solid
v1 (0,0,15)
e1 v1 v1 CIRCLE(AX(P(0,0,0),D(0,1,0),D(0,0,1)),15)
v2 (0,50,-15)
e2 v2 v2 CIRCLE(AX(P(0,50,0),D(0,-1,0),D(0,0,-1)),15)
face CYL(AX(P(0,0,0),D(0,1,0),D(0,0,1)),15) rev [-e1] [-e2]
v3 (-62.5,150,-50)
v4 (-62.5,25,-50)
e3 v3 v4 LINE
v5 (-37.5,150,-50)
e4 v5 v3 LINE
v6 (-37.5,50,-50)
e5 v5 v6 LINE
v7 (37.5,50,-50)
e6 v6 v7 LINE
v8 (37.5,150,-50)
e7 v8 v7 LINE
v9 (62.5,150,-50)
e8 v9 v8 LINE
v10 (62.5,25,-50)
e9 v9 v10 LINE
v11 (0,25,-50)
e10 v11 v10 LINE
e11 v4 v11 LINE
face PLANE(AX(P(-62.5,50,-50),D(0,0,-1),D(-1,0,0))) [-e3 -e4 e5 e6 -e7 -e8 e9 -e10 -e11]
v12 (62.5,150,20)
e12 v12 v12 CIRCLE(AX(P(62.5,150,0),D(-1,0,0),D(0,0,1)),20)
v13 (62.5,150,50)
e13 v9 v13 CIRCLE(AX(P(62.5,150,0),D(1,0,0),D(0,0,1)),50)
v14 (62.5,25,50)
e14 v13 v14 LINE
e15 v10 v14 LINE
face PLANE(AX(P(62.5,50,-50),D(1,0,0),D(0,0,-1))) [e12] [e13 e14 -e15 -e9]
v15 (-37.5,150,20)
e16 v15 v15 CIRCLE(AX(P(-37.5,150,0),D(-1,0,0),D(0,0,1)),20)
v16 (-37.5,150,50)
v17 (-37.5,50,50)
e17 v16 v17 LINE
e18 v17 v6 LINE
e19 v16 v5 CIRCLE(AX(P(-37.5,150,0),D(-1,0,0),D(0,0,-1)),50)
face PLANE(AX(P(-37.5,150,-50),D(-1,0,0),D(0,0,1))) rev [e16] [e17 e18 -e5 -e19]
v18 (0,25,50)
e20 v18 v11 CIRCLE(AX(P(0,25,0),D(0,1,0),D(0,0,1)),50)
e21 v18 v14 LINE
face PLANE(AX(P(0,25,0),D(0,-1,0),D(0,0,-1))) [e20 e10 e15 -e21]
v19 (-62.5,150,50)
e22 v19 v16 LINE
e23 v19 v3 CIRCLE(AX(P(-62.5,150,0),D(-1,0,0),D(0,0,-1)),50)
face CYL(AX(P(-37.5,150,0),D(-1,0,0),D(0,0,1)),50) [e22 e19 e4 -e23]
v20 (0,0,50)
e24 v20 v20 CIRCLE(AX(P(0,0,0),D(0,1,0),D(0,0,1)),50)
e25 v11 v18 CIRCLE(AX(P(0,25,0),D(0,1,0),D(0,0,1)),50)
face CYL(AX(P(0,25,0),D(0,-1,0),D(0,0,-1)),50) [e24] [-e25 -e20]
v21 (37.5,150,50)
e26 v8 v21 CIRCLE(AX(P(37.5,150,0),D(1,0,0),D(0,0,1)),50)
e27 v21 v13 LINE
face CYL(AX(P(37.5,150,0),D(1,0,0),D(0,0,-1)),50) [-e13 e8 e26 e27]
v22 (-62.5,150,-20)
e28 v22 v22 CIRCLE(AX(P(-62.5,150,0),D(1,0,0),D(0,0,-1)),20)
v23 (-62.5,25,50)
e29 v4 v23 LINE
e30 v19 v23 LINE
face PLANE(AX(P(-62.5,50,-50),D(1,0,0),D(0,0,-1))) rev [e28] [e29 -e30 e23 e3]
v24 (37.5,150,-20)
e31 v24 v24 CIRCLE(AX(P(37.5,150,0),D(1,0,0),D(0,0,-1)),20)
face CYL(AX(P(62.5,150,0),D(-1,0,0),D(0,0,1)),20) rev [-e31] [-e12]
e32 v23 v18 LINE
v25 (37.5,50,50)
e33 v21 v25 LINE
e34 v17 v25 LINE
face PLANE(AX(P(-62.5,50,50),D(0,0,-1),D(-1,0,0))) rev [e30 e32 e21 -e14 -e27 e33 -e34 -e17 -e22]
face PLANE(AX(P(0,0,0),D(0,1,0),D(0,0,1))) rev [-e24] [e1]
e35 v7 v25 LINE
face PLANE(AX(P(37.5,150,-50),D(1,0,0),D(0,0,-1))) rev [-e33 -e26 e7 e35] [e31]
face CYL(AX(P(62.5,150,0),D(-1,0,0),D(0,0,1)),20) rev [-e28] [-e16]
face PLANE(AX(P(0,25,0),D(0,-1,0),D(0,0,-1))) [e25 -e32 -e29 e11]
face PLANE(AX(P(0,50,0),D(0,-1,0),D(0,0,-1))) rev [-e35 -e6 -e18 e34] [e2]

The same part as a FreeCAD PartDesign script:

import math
import FreeCAD as App
import Part
import Sketcher

V = App.Vector
Q = App.Units.Quantity


def add_polygon(sketch, points):
    """Adds a closed chain of lines whose ends are joined by coincident constraints."""
    first, n = sketch.GeometryCount, len(points)
    for a, b in zip(points, points[1:] + points[:1]):
        sketch.addGeometry(Part.LineSegment(App.Vector(*a, 0), App.Vector(*b, 0)), False)
    for i in range(n):
        sketch.addConstraint(Sketcher.Constraint("Coincident", first + i, 2, first + (i + 1) % n, 1))

doc = App.newDocument("Part")
params = doc.addObject("Spreadsheet::Sheet", "Params")
for row, (alias, value) in enumerate([
    ("sketch1_diameter", "100 mm"),
    ("sketch1_diameter2", "75 mm"),
    ("pad1_length", "25 mm"),
    ("sketch2_diameter", "75 mm"),
    ("pad2_length", "25 mm"),
    ("sketch3_width", "125 mm"),
    ("sketch3_height", "100 mm"),
    ("pad3_length", "25 mm"),
    ("sketch4_width", "25 mm"),
    ("sketch4_height", "100 mm"),
    ("pad4_length", "100 mm"),
    ("sketch5_width", "25 mm"),
    ("sketch5_height", "100 mm"),
    ("pad5_length", "100 mm"),
    ("sketch6_diameter", "30 mm"),
    ("sketch7_radius", "50 mm"),
    ("sketch7_width", "125 mm"),
    ("pad6_length", "25 mm"),
    ("sketch8_radius", "50 mm"),
    ("pad7_length", "25 mm"),
    ("sketch9_diameter", "40 mm"),
], start=1):
    params.set(f"A{row}", alias)
    params.set(f"B{row}", "=" + value)
    params.setAlias(f"B{row}", alias)

body = doc.addObject("PartDesign::Body", "Body")

# Sketch on XZ plane
sketch1 = body.newObject("Sketcher::SketchObject", "Sketch")
sketch1.AttachmentSupport = (doc.getObject("XZ_Plane"), [""])
sketch1.MapMode = "FlatFace"
sketch1.addGeometry(Part.Circle(V(0, 0, 0), V(0, 0, 1), 50), False)
sketch1.addGeometry(Part.Circle(V(0, 0, 0), V(0, 0, 1), 37.5), False)
sketch1.addConstraint(Sketcher.Constraint("Coincident", 0, 3, -1, 1))
sketch1.addConstraint(Sketcher.Constraint("Coincident", 1, 3, -1, 1))
sketch1.addConstraint(Sketcher.Constraint("Diameter", 0, Q("100 mm")))
sketch1.addConstraint(Sketcher.Constraint("Diameter", 1, Q("75 mm")))
sketch1.setExpression("Constraints[2]", "Params.sketch1_diameter")
sketch1.setExpression("Constraints[3]", "Params.sketch1_diameter2")
pad1 = body.newObject("PartDesign::Pad", "Pad")
pad1.Profile = sketch1
pad1.setExpression("Length", "Params.pad1_length")
pad1.Reversed = True

# Sketch on XZ plane
sketch2 = body.newObject("Sketcher::SketchObject", "Sketch001")
sketch2.AttachmentSupport = (doc.getObject("XZ_Plane"), [""])
sketch2.MapMode = "FlatFace"
sketch2.addGeometry(Part.Circle(V(0, 0, 0), V(0, 0, 1), 37.5), False)
sketch2.addConstraint(Sketcher.Constraint("Coincident", 0, 3, -1, 1))
sketch2.addConstraint(Sketcher.Constraint("Diameter", 0, Q("75 mm")))
sketch2.setExpression("Constraints[1]", "Params.sketch2_diameter")
pad2 = body.newObject("PartDesign::Pad", "Pad001")
pad2.Profile = sketch2
pad2.setExpression("Length", "Params.pad2_length")
pad2.Reversed = True

# Sketch on XZ plane
sketch3 = body.newObject("Sketcher::SketchObject", "Sketch002")
sketch3.AttachmentSupport = (doc.getObject("XZ_Plane"), [""])
sketch3.MapMode = "FlatFace"
sketch3.AttachmentOffset = App.Placement(V(0, 0, -25), App.Rotation())
add_polygon(sketch3, [(-62.5, -50), (-62.5, 50), (62.5, 50), (62.5, -50)])  # lines 0-3
sketch3.addConstraint(Sketcher.Constraint("Vertical", 0))
sketch3.addConstraint(Sketcher.Constraint("Horizontal", 1))
sketch3.addConstraint(Sketcher.Constraint("Vertical", 2))
sketch3.addConstraint(Sketcher.Constraint("Horizontal", 3))
sketch3.addConstraint(Sketcher.Constraint("Symmetric", 0, 2, 2, 2, -1, 1))
sketch3.addConstraint(Sketcher.Constraint("DistanceX", 1, 1, 1, 2, Q("125 mm")))
sketch3.addConstraint(Sketcher.Constraint("DistanceY", 0, 1, 0, 2, Q("100 mm")))
sketch3.setExpression("Constraints[9]", "Params.sketch3_width")
sketch3.setExpression("Constraints[10]", "Params.sketch3_height")
pad3 = body.newObject("PartDesign::Pad", "Pad002")
pad3.Profile = sketch3
pad3.setExpression("Length", "Params.pad3_length")
pad3.Reversed = True

# Sketch on XZ plane
sketch4 = body.newObject("Sketcher::SketchObject", "Sketch003")
sketch4.AttachmentSupport = (doc.getObject("XZ_Plane"), [""])
sketch4.MapMode = "FlatFace"
sketch4.AttachmentOffset = App.Placement(V(0, 0, -50), App.Rotation())
add_polygon(sketch4, [(-62.5, -50), (-62.5, 50), (-37.5, 50), (-37.5, -50)])  # lines 0-3
sketch4.addConstraint(Sketcher.Constraint("Vertical", 0))
sketch4.addConstraint(Sketcher.Constraint("Horizontal", 1))
sketch4.addConstraint(Sketcher.Constraint("Vertical", 2))
sketch4.addConstraint(Sketcher.Constraint("Horizontal", 3))
sketch4.addConstraint(Sketcher.Constraint("DistanceX", 1, 1, 1, 2, Q("25 mm")))
sketch4.addConstraint(Sketcher.Constraint("DistanceY", 0, 1, 0, 2, Q("100 mm")))
sketch4.addConstraint(Sketcher.Constraint("DistanceY", -1, 1, 0, 2, Q("50 mm")))
sketch4.addConstraint(Sketcher.Constraint("DistanceX", 0, 2, -1, 1, Q("62.5 mm")))
sketch4.setExpression("Constraints[8]", "Params.sketch4_width")
sketch4.setExpression("Constraints[9]", "Params.sketch4_height")
pad4 = body.newObject("PartDesign::Pad", "Pad003")
pad4.Profile = sketch4
pad4.setExpression("Length", "Params.pad4_length")
pad4.Reversed = True

# Sketch on XZ plane
sketch5 = body.newObject("Sketcher::SketchObject", "Sketch004")
sketch5.AttachmentSupport = (doc.getObject("XZ_Plane"), [""])
sketch5.MapMode = "FlatFace"
sketch5.AttachmentOffset = App.Placement(V(0, 0, -50), App.Rotation())
add_polygon(sketch5, [(37.5, -50), (37.5, 50), (62.5, 50), (62.5, -50)])  # lines 0-3
sketch5.addConstraint(Sketcher.Constraint("Vertical", 0))
sketch5.addConstraint(Sketcher.Constraint("Horizontal", 1))
sketch5.addConstraint(Sketcher.Constraint("Vertical", 2))
sketch5.addConstraint(Sketcher.Constraint("Horizontal", 3))
sketch5.addConstraint(Sketcher.Constraint("DistanceX", 1, 1, 1, 2, Q("25 mm")))
sketch5.addConstraint(Sketcher.Constraint("DistanceY", 0, 1, 0, 2, Q("100 mm")))
sketch5.addConstraint(Sketcher.Constraint("DistanceY", -1, 1, 0, 2, Q("50 mm")))
sketch5.addConstraint(Sketcher.Constraint("DistanceX", -1, 1, 0, 2, Q("37.5 mm")))
sketch5.setExpression("Constraints[8]", "Params.sketch5_width")
sketch5.setExpression("Constraints[9]", "Params.sketch5_height")
pad5 = body.newObject("PartDesign::Pad", "Pad004")
pad5.Profile = sketch5
pad5.setExpression("Length", "Params.pad5_length")
pad5.Reversed = True

# Sketch on XZ plane
sketch6 = body.newObject("Sketcher::SketchObject", "Sketch005")
sketch6.AttachmentSupport = (doc.getObject("XZ_Plane"), [""])
sketch6.MapMode = "FlatFace"
sketch6.AttachmentOffset = App.Placement(V(0, 0, -50), App.Rotation())
sketch6.addGeometry(Part.Circle(V(0, 0, 0), V(0, 0, 1), 15), False)
sketch6.addConstraint(Sketcher.Constraint("Coincident", 0, 3, -1, 1))
sketch6.addConstraint(Sketcher.Constraint("Diameter", 0, Q("30 mm")))
sketch6.setExpression("Constraints[1]", "Params.sketch6_diameter")
pocket1 = body.newObject("PartDesign::Pocket", "Pocket")
pocket1.Profile = sketch6
pocket1.Type = "ThroughAll"
pocket1.Midplane = True

# Sketch on YZ plane
sketch7 = body.newObject("Sketcher::SketchObject", "Sketch006")
sketch7.AttachmentSupport = (doc.getObject("YZ_Plane"), [""])
sketch7.MapMode = "FlatFace"
sketch7.AttachmentOffset = App.Placement(V(0, 0, 62.5), App.Rotation())
sketch7.addGeometry(Part.LineSegment(V(25, 50, 0), V(25, -50, 0)), False)
sketch7.addGeometry(Part.LineSegment(V(25, -50, 0), V(150, -50, 0)), False)
sketch7.addGeometry(Part.ArcOfCircle(Part.Circle(V(150, 0, 0), V(0, 0, 1), 50), math.radians(-90), math.radians(90)), False)
sketch7.addGeometry(Part.LineSegment(V(150, 50, 0), V(25, 50, 0)), False)
sketch7.addConstraint(Sketcher.Constraint("Coincident", 0, 2, 1, 1))
sketch7.addConstraint(Sketcher.Constraint("Tangent", 1, 2, 2, 1))
sketch7.addConstraint(Sketcher.Constraint("Tangent", 2, 2, 3, 1))
sketch7.addConstraint(Sketcher.Constraint("Coincident", 3, 2, 0, 1))
sketch7.addConstraint(Sketcher.Constraint("Vertical", 0))
sketch7.addConstraint(Sketcher.Constraint("Horizontal", 1))
sketch7.addConstraint(Sketcher.Constraint("Horizontal", 3))
sketch7.addConstraint(Sketcher.Constraint("PointOnObject", 2, 3, -1))
sketch7.addConstraint(Sketcher.Constraint("Radius", 2, Q("50 mm")))
sketch7.addConstraint(Sketcher.Constraint("DistanceX", 1, 1, 1, 2, Q("125 mm")))
sketch7.addConstraint(Sketcher.Constraint("DistanceX", -1, 1, 2, 3, Q("150 mm")))
sketch7.setExpression("Constraints[8]", "Params.sketch7_radius")
sketch7.setExpression("Constraints[9]", "Params.sketch7_width")
pad6 = body.newObject("PartDesign::Pad", "Pad005")
pad6.Profile = sketch7
pad6.setExpression("Length", "Params.pad6_length")
pad6.Reversed = True

# Sketch on YZ plane
sketch8 = body.newObject("Sketcher::SketchObject", "Sketch007")
sketch8.AttachmentSupport = (doc.getObject("YZ_Plane"), [""])
sketch8.MapMode = "FlatFace"
sketch8.AttachmentOffset = App.Placement(V(0, 0, -62.5), App.Rotation())
sketch8.addGeometry(Part.LineSegment(V(150, -50, 0), V(150, 50, 0)), False)
sketch8.addGeometry(Part.ArcOfCircle(Part.Circle(V(150, 0, 0), V(0, 0, 1), 50), math.radians(-90), math.radians(90)), False)
sketch8.addConstraint(Sketcher.Constraint("Coincident", 0, 1, 1, 1))
sketch8.addConstraint(Sketcher.Constraint("Coincident", 1, 2, 0, 2))
sketch8.addConstraint(Sketcher.Constraint("Vertical", 0))
sketch8.addConstraint(Sketcher.Constraint("PointOnObject", 1, 3, -1))
sketch8.addConstraint(Sketcher.Constraint("Vertical", 1, 3, 0, 1))
sketch8.addConstraint(Sketcher.Constraint("Radius", 1, Q("50 mm")))
sketch8.addConstraint(Sketcher.Constraint("DistanceX", -1, 1, 1, 3, Q("150 mm")))
sketch8.setExpression("Constraints[5]", "Params.sketch8_radius")
pad7 = body.newObject("PartDesign::Pad", "Pad006")
pad7.Profile = sketch8
pad7.setExpression("Length", "Params.pad7_length")

# Sketch on YZ plane
sketch9 = body.newObject("Sketcher::SketchObject", "Sketch008")
sketch9.AttachmentSupport = (doc.getObject("YZ_Plane"), [""])
sketch9.MapMode = "FlatFace"
sketch9.AttachmentOffset = App.Placement(V(0, 0, -62.5), App.Rotation())
sketch9.addGeometry(Part.Circle(V(150, 0, 0), V(0, 0, 1), 20), False)
sketch9.addConstraint(Sketcher.Constraint("PointOnObject", 0, 3, -1))
sketch9.addConstraint(Sketcher.Constraint("Diameter", 0, Q("40 mm")))
sketch9.addConstraint(Sketcher.Constraint("DistanceX", -1, 1, 0, 3, Q("150 mm")))
sketch9.setExpression("Constraints[1]", "Params.sketch9_diameter")
pocket2 = body.newObject("PartDesign::Pocket", "Pocket001")
pocket2.Profile = sketch9
pocket2.Type = "ThroughAll"
pocket2.Midplane = True

doc.recompute()
